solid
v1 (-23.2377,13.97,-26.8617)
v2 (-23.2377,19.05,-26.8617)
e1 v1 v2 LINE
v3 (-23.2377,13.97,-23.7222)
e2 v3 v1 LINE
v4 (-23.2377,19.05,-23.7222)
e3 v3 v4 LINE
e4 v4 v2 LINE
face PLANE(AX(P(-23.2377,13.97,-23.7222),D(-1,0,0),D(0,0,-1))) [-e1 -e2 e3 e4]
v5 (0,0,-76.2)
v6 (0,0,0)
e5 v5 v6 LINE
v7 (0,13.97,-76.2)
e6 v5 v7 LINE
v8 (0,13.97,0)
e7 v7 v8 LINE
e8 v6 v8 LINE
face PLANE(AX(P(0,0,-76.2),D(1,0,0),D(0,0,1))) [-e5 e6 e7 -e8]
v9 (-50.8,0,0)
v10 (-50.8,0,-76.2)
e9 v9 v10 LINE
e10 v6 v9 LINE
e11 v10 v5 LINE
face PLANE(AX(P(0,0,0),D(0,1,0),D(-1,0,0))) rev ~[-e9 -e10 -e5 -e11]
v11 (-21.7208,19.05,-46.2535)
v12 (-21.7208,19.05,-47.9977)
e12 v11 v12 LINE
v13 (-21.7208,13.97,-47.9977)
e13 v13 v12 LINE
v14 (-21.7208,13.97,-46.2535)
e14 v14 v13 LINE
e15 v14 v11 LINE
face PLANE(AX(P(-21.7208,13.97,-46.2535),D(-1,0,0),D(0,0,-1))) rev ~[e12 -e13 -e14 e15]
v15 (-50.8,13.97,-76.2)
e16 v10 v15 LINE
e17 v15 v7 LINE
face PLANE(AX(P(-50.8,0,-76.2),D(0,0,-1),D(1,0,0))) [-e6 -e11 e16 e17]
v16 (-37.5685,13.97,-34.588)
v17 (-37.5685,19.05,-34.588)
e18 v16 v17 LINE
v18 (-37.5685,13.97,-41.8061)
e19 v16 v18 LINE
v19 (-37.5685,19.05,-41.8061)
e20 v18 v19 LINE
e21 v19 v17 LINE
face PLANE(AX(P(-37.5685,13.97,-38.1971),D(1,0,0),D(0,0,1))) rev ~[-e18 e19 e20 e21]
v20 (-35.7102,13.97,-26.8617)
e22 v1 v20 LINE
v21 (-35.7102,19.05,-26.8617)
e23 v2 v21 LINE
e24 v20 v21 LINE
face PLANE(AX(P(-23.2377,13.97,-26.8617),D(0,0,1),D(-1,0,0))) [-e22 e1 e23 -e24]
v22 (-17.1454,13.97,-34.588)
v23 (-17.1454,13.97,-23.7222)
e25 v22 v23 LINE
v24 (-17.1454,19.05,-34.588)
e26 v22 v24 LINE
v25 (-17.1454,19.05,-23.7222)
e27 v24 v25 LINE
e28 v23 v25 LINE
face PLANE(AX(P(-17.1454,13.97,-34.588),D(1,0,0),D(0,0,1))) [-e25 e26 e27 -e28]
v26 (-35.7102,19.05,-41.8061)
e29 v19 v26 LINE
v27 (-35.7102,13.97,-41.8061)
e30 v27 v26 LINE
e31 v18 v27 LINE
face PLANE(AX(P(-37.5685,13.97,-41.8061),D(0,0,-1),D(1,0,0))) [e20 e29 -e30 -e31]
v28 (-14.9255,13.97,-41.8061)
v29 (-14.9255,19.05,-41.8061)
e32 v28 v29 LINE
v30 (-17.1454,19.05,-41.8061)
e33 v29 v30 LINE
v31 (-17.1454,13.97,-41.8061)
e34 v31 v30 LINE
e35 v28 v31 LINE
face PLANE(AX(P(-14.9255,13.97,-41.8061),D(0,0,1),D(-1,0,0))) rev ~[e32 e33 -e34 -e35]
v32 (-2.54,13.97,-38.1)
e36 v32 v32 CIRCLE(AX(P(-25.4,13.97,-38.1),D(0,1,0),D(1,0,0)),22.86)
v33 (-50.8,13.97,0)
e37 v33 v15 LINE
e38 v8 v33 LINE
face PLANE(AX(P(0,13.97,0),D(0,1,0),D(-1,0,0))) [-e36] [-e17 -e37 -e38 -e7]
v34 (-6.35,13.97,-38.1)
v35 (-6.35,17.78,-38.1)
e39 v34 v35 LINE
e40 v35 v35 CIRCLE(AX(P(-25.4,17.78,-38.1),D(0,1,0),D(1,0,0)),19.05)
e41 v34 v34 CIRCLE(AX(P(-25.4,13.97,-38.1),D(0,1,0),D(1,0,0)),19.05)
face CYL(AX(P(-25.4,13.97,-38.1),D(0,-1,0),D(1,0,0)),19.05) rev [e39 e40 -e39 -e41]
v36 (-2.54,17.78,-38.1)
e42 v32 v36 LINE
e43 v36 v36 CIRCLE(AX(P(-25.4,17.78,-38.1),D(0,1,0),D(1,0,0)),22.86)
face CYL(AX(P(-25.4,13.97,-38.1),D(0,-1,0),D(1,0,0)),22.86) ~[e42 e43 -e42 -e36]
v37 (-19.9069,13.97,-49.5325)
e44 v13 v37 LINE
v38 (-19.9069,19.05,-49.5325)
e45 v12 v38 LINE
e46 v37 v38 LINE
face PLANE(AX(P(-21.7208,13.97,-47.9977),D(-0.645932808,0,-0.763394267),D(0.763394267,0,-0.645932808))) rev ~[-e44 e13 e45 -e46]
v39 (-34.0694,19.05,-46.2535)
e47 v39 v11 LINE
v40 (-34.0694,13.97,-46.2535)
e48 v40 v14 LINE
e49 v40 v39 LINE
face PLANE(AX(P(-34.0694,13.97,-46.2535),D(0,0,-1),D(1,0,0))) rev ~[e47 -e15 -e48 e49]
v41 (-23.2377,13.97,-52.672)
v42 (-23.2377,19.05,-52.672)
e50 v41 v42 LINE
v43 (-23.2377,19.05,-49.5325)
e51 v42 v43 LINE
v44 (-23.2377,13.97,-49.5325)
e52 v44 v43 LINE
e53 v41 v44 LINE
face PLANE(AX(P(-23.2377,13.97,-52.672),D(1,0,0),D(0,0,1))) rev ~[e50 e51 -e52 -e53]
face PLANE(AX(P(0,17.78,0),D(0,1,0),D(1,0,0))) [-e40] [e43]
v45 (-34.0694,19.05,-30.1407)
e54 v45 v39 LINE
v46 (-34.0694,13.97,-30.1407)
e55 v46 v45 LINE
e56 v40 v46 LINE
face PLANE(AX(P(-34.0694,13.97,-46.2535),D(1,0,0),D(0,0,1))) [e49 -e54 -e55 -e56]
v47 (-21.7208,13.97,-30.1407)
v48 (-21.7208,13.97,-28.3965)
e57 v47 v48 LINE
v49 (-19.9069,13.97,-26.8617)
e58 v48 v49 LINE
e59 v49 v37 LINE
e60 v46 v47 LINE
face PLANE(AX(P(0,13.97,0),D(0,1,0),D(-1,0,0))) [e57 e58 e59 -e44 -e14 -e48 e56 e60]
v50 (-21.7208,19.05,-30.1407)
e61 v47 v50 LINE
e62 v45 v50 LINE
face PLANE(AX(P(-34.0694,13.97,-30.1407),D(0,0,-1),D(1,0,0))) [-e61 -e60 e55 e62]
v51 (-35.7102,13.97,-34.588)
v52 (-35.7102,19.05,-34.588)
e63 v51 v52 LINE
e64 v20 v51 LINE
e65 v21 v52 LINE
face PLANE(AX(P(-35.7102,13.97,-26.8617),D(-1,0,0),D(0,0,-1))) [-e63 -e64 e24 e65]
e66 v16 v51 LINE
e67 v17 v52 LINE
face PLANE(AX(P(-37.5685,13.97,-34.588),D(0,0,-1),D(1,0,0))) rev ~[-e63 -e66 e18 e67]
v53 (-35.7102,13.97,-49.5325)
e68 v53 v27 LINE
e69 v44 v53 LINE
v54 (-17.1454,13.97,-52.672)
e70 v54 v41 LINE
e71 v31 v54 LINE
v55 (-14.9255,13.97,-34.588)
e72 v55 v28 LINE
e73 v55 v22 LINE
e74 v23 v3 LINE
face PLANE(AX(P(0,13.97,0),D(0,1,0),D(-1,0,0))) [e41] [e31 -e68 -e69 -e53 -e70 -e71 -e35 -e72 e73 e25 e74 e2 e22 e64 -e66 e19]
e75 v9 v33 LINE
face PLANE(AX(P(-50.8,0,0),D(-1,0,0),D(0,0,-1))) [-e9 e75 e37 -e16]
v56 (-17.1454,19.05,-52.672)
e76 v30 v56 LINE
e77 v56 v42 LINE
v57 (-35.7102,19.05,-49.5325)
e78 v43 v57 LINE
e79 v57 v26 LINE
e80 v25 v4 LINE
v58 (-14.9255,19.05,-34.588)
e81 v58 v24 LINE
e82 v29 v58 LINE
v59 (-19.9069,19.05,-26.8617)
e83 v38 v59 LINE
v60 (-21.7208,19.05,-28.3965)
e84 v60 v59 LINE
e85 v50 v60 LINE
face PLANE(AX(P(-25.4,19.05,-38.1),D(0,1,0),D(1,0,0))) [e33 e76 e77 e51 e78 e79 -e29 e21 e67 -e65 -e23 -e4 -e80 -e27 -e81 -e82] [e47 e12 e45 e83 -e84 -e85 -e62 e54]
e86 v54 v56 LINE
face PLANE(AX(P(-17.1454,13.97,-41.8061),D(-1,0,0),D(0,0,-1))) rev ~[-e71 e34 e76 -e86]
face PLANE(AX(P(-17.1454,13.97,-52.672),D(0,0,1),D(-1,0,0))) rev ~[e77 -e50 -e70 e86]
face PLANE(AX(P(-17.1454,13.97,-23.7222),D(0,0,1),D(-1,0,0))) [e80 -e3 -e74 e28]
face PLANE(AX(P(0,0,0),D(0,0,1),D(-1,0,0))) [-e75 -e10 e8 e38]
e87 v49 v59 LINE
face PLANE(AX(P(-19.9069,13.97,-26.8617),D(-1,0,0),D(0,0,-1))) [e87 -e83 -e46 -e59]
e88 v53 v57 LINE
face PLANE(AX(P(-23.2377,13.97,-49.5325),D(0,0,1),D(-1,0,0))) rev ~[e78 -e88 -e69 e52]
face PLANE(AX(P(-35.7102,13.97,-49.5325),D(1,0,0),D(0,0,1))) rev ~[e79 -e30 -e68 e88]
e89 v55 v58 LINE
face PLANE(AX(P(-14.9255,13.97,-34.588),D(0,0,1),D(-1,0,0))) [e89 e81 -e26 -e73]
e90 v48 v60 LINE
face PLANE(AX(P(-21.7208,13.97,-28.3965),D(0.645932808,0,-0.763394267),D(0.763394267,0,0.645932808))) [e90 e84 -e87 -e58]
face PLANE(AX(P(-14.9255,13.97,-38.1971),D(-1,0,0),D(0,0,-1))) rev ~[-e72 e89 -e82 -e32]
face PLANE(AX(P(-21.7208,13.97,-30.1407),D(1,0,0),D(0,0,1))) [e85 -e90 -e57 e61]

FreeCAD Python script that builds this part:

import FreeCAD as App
import Part
import Sketcher

V = App.Vector
Q = App.Units.Quantity

doc = App.newDocument("Part")
body = doc.addObject("PartDesign::Body", "Body")

# Sketch on XZ plane
sketch1 = body.newObject("Sketcher::SketchObject", "Sketch")
sketch1.AttachmentSupport = (doc.getObject("XZ_Plane"), [""])
sketch1.MapMode = "FlatFace"
sketch1.addGeometry([
    Part.LineSegment(V(-51, 0, 0), V(0, 0, 0)),
    Part.LineSegment(V(0, 0, 0), V(0, -76, 0)),
    Part.LineSegment(V(0, -76, 0), V(-51, -76, 0)),
    Part.LineSegment(V(-51, -76, 0), V(-51, 0, 0)),
], False)
sketch1.addConstraint([
    Sketcher.Constraint("Coincident", 0, 2, 1, 1),
    Sketcher.Constraint("Coincident", 1, 2, 2, 1),
    Sketcher.Constraint("Coincident", 2, 2, 3, 1),
    Sketcher.Constraint("Coincident", 3, 2, 0, 1),
    Sketcher.Constraint("Horizontal", 0),
    Sketcher.Constraint("Vertical", 1),
    Sketcher.Constraint("Horizontal", 2),
    Sketcher.Constraint("Vertical", 3),
    Sketcher.Constraint("Coincident", 0, 2, -1, 1),
    Sketcher.Constraint("DistanceX", 0, 1, 0, 2, Q("2 in")),
    Sketcher.Constraint("DistanceY", 1, 2, 1, 1, Q("3 in")),
])
pad1 = body.newObject("PartDesign::Pad", "Pad")
pad1.Profile = sketch1
pad1.Length = Q("0.55 in")
pad1.Reversed = True

# Sketch on XZ plane
sketch2 = body.newObject("Sketcher::SketchObject", "Sketch001")
sketch2.AttachmentSupport = (doc.getObject("XZ_Plane"), [""])
sketch2.MapMode = "FlatFace"
sketch2.AttachmentOffset = App.Placement(V(0, 0, -0.55 * 25.4), App.Rotation())
sketch2.addGeometry([
    Part.Circle(V(-25, -38, 0), V(0, 0, 1), 23),
    Part.Circle(V(-25, -38, 0), V(0, 0, 1), 19),
], False)
sketch2.addConstraint([
    Sketcher.Constraint("Coincident", 1, 3, 0, 3),
    Sketcher.Constraint("Diameter", 0, Q("1.8 in")),
    Sketcher.Constraint("Diameter", 1, Q("1.5 in")),
    Sketcher.Constraint("DistanceY", 0, 3, -1, 1, Q("1.5 in")),
    Sketcher.Constraint("DistanceX", 0, 3, -1, 1, Q("1 in")),
])
pad2 = body.newObject("PartDesign::Pad", "Pad001")
pad2.Profile = sketch2
pad2.Length = Q("0.15 in")
pad2.Reversed = True

# Sketch on XZ plane
sketch3 = body.newObject("Sketcher::SketchObject", "Sketch002")
sketch3.AttachmentSupport = (doc.getObject("XZ_Plane"), [""])
sketch3.MapMode = "FlatFace"
sketch3.AttachmentOffset = App.Placement(V(0, 0, -0.55 * 25.4), App.Rotation())
sketch3.addGeometry([
    Part.LineSegment(V(-14.9, -41.8, 0), V(-17.1, -41.8, 0)),  # 0
    Part.LineSegment(V(-17.1, -41.8, 0), V(-17.1, -52.7, 0)),  # 1
    Part.LineSegment(V(-17.1, -52.7, 0), V(-23.2, -52.7, 0)),  # 2
    Part.LineSegment(V(-23.2, -52.7, 0), V(-23.2, -49.5, 0)),  # 3
    Part.LineSegment(V(-23.2, -49.5, 0), V(-35.7, -49.5, 0)),  # 4
    Part.LineSegment(V(-35.7, -49.5, 0), V(-35.7, -41.8, 0)),  # 5
    Part.LineSegment(V(-35.7, -41.8, 0), V(-37.6, -41.8, 0)),  # 6
    Part.LineSegment(V(-37.6, -41.8, 0), V(-37.6, -34.6, 0)),  # 7
    Part.LineSegment(V(-37.6, -34.6, 0), V(-35.7, -34.6, 0)),  # 8
    Part.LineSegment(V(-35.7, -34.6, 0), V(-35.7, -26.9, 0)),  # 9
    Part.LineSegment(V(-35.7, -26.9, 0), V(-23.2, -26.9, 0)),  # 10
    Part.LineSegment(V(-23.2, -26.9, 0), V(-23.2, -23.7, 0)),  # 11
    Part.LineSegment(V(-23.2, -23.7, 0), V(-17.1, -23.7, 0)),  # 12
    Part.LineSegment(V(-17.1, -23.7, 0), V(-17.1, -34.6, 0)),  # 13
    Part.LineSegment(V(-17.1, -34.6, 0), V(-14.9, -34.6, 0)),  # 14
    Part.LineSegment(V(-14.9, -34.6, 0), V(-14.9, -41.8, 0)),  # 15
    Part.LineSegment(V(-21.7, -46.3, 0), V(-21.7, -48, 0)),  # 16
    Part.LineSegment(V(-21.7, -48, 0), V(-19.9, -49.5, 0)),  # 17
    Part.LineSegment(V(-19.9, -49.5, 0), V(-19.9, -26.9, 0)),  # 18
    Part.LineSegment(V(-19.9, -26.9, 0), V(-21.7, -28.4, 0)),  # 19
    Part.LineSegment(V(-21.7, -28.4, 0), V(-21.7, -30.1, 0)),  # 20
    Part.LineSegment(V(-21.7, -30.1, 0), V(-34.1, -30.1, 0)),  # 21
    Part.LineSegment(V(-34.1, -30.1, 0), V(-34.1, -46.3, 0)),  # 22
    Part.LineSegment(V(-34.1, -46.3, 0), V(-21.7, -46.3, 0)),  # 23
], False)
sketch3.addConstraint([
    Sketcher.Constraint("Coincident", 0, 2, 1, 1),
    Sketcher.Constraint("Coincident", 1, 2, 2, 1),
    Sketcher.Constraint("Coincident", 2, 2, 3, 1),
    Sketcher.Constraint("Coincident", 3, 2, 4, 1),
    Sketcher.Constraint("Coincident", 4, 2, 5, 1),
    Sketcher.Constraint("Coincident", 5, 2, 6, 1),
    Sketcher.Constraint("Coincident", 6, 2, 7, 1),
    Sketcher.Constraint("Coincident", 7, 2, 8, 1),
    Sketcher.Constraint("Coincident", 8, 2, 9, 1),
    Sketcher.Constraint("Coincident", 9, 2, 10, 1),
    Sketcher.Constraint("Coincident", 10, 2, 11, 1),
    Sketcher.Constraint("Coincident", 11, 2, 12, 1),
    Sketcher.Constraint("Coincident", 12, 2, 13, 1),
    Sketcher.Constraint("Coincident", 13, 2, 14, 1),
    Sketcher.Constraint("Coincident", 14, 2, 15, 1),
    Sketcher.Constraint("Coincident", 15, 2, 0, 1),
    Sketcher.Constraint("Coincident", 16, 2, 17, 1),
    Sketcher.Constraint("Coincident", 17, 2, 18, 1),
    Sketcher.Constraint("Coincident", 18, 2, 19, 1),
    Sketcher.Constraint("Coincident", 19, 2, 20, 1),
    Sketcher.Constraint("Coincident", 20, 2, 21, 1),
    Sketcher.Constraint("Coincident", 21, 2, 22, 1),
    Sketcher.Constraint("Coincident", 22, 2, 23, 1),
    Sketcher.Constraint("Coincident", 23, 2, 16, 1),
    Sketcher.Constraint("Horizontal", 0),
    Sketcher.Constraint("Vertical", 1),
    Sketcher.Constraint("Horizontal", 2),
    Sketcher.Constraint("Vertical", 3),
    Sketcher.Constraint("Horizontal", 4),
    Sketcher.Constraint("Vertical", 5),
    Sketcher.Constraint("Horizontal", 6),
    Sketcher.Constraint("Vertical", 7),
    Sketcher.Constraint("Horizontal", 8),
    Sketcher.Constraint("Vertical", 9),
    Sketcher.Constraint("Horizontal", 10),
    Sketcher.Constraint("Vertical", 11),
    Sketcher.Constraint("Horizontal", 12),
    Sketcher.Constraint("Vertical", 13),
    Sketcher.Constraint("Horizontal", 14),
    Sketcher.Constraint("Vertical", 15),
    Sketcher.Constraint("Vertical", 16),
    Sketcher.Constraint("Vertical", 18),
    Sketcher.Constraint("Vertical", 20),
    Sketcher.Constraint("Horizontal", 21),
    Sketcher.Constraint("Vertical", 22),
    Sketcher.Constraint("Horizontal", 23),
    Sketcher.Constraint("Horizontal", 0, 2, 5, 2),
    Sketcher.Constraint("Horizontal", 8, 2, 13, 2),
    Sketcher.Constraint("Horizontal", 4, 2, 17, 2),
    Sketcher.Constraint("Horizontal", 10, 2, 18, 2),
    Sketcher.Constraint("Vertical", 5, 2, 8, 2),
    Sketcher.Constraint("Vertical", 3, 2, 10, 2),
    Sketcher.Constraint("Vertical", 1, 2, 12, 2),
    Sketcher.Constraint("Vertical", 16, 2, 19, 2),
    Sketcher.Constraint("Equal", 5, 9),
    Sketcher.Constraint("Equal", 3, 11),
    Sketcher.Constraint("Equal", 16, 20),
    Sketcher.Constraint("Equal", 17, 19),
    Sketcher.Constraint("DistanceX", 0, 2, 0, 1, Q("0.0874 in")),
    Sketcher.Constraint("DistanceY", 1, 2, 1, 1, Q("0.4278 in")),
    Sketcher.Constraint("DistanceY", 3, 1, 3, 2, Q("0.1236 in")),
    Sketcher.Constraint("DistanceY", 22, 2, -1, 1, Q("1.821 in")),
    Sketcher.Constraint("DistanceX", 2, 2, 2, 1, Q("6.0923 mm")),
    Sketcher.Constraint("DistanceX", 4, 2, 4, 1, Q("12.4725 mm")),
    Sketcher.Constraint("DistanceX", 6, 2, 6, 1, Q("1.8583 mm")),
    Sketcher.Constraint("DistanceX", 21, 2, 21, 1, Q("12.3486 mm")),
    Sketcher.Constraint("DistanceY", 7, 1, 7, 2, Q("7.218 mm")),
    Sketcher.Constraint("DistanceY", 16, 2, 16, 1, Q("1.7442 mm")),
    Sketcher.Constraint("DistanceY", 22, 2, 22, 1, Q("16.1128 mm")),
    Sketcher.Constraint("DistanceX", 9, 2, 21, 2, Q("0.0646 in")),
    Sketcher.Constraint("Distance", 17, Q("2.376 mm")),
    Sketcher.Constraint("DistanceX", 0, 2, -1, 1, Q("17.1454 mm")),
])
pad3 = body.newObject("PartDesign::Pad", "Pad002")
pad3.Profile = sketch3
pad3.Length = Q("0.2 in")
pad3.Reversed = True

doc.recompute()
